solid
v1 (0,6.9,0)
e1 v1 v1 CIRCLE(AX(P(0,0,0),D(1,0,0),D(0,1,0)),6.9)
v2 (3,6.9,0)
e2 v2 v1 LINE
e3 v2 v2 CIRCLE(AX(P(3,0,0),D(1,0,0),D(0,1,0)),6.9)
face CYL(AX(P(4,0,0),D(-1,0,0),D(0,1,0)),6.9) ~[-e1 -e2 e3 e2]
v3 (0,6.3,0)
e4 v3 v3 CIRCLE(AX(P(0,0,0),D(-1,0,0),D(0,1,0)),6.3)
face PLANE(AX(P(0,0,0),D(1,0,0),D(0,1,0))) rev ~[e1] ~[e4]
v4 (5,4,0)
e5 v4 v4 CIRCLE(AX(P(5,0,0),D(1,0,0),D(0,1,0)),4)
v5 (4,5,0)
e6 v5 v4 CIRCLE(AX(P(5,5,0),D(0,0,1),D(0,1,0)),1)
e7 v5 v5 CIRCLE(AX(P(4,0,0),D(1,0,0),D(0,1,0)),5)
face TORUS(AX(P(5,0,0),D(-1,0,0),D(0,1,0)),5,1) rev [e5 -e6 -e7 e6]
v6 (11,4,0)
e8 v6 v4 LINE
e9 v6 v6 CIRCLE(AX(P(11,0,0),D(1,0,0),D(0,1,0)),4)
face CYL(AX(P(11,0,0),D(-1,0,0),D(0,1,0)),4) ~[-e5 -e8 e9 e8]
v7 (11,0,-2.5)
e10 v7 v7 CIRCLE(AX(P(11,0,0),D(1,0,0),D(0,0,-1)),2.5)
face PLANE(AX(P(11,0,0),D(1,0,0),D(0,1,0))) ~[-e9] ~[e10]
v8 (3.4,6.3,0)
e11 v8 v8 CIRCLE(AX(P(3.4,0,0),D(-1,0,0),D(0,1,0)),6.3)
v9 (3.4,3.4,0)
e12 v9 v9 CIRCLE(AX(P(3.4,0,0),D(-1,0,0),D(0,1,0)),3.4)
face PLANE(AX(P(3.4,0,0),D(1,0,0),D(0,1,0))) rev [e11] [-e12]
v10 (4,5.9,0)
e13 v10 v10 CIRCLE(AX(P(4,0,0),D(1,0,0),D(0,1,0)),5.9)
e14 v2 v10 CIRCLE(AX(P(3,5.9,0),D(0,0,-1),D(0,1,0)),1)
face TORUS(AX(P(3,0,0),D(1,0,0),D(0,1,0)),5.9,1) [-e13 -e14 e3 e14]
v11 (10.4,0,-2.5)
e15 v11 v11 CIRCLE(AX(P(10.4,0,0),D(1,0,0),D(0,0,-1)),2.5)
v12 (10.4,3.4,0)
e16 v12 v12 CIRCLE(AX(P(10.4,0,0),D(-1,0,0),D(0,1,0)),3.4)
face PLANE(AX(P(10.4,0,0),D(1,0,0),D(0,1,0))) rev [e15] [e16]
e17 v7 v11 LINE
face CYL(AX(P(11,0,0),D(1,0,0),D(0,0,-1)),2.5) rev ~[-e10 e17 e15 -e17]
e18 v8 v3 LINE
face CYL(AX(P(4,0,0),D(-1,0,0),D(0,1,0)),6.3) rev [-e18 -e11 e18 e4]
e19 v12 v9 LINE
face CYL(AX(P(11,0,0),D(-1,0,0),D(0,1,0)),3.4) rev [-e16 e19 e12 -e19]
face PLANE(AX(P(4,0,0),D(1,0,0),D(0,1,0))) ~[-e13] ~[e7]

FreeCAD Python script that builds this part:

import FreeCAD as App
import Part
import Sketcher


def edges_at(feature, points):
    """Names of the edges that pass closest to the given points."""
    edges = feature.Shape.Edges
    near = lambda p: min(range(len(edges)), key=lambda i: edges[i].distToShape(Part.Vertex(*p))[0])
    return sorted({f"Edge{near(p) + 1}" for p in points})


def faces_at(feature, points):
    """Names of the faces that lie closest to the given points."""
    faces = feature.Shape.Faces
    near = lambda p: min(range(len(faces)), key=lambda i: faces[i].distToShape(Part.Vertex(*p))[0])
    return sorted({f"Face{near(p) + 1}" for p in points})

doc = App.newDocument("Part")
body = doc.addObject("PartDesign::Body", "Body")

sketch1 = body.newObject("Sketcher::SketchObject", "Sketch")
sketch1.AttachmentSupport = (doc.getObject("XY_Plane"), [""])
sketch1.MapMode = "FlatFace"
sketch1.addGeometry([
    Part.LineSegment(App.Vector(0, 6.9, 0), App.Vector(0, 0, 0)),
    Part.LineSegment(App.Vector(0, 0, 0), App.Vector(11, 0, 0)),
    Part.LineSegment(App.Vector(11, 0, 0), App.Vector(11, 4, 0)),
    Part.LineSegment(App.Vector(11, 4, 0), App.Vector(4, 4, 0)),
    Part.LineSegment(App.Vector(4, 4, 0), App.Vector(4, 6.9, 0)),
    Part.LineSegment(App.Vector(4, 6.9, 0), App.Vector(0, 6.9, 0)),
], False)
sketch1.addConstraint([
    Sketcher.Constraint("Coincident", 0, 2, 1, 1),
    Sketcher.Constraint("Coincident", 1, 2, 2, 1),
    Sketcher.Constraint("Coincident", 2, 2, 3, 1),
    Sketcher.Constraint("Coincident", 3, 2, 4, 1),
    Sketcher.Constraint("Coincident", 4, 2, 5, 1),
    Sketcher.Constraint("Coincident", 5, 2, 0, 1),
    Sketcher.Constraint("Vertical", 0),
    Sketcher.Constraint("Horizontal", 1),
    Sketcher.Constraint("Vertical", 2),
    Sketcher.Constraint("Horizontal", 3),
    Sketcher.Constraint("Vertical", 4),
    Sketcher.Constraint("Horizontal", 5),
    Sketcher.Constraint("Coincident", 0, 2, -1, 1),
    Sketcher.Constraint("Equal", 5, 2),
    Sketcher.Constraint("DistanceX", 3, 2, 3, 1, 7.0),
    Sketcher.Constraint("DistanceX", 5, 2, 5, 1, 4.0),
    Sketcher.Constraint("DistanceY", 0, 2, 0, 1, 6.9),
])
revolution = body.newObject("PartDesign::Revolution", "Revolution")
revolution.Profile = sketch1
revolution.ReferenceAxis = (sketch1, ["H_Axis"])
revolution.Angle = 360
doc.recompute()

thickness = body.newObject("PartDesign::Thickness", "Thickness")
thickness.Base = (revolution, faces_at(revolution, [(0, 1.183, -1.658)]))
thickness.Value = 0.6
thickness.Reversed = True
thickness.Join = "Intersection"

sketch2 = body.newObject("Sketcher::SketchObject", "Sketch001")
sketch2.AttachmentSupport = (doc.getObject("YZ_Plane"), [""])
sketch2.MapMode = "FlatFace"
sketch2.AttachmentOffset = App.Placement(App.Vector(0, 0, 11), App.Rotation())
sketch2.addGeometry(Part.Circle(App.Vector(0, 0, 0), App.Vector(0, 0, 1), 2.5), False)
sketch2.addConstraint([
    Sketcher.Constraint("Coincident", 0, 3, -1, 1),
    Sketcher.Constraint("Diameter", 0, 5.0),
])
pocket1 = body.newObject("PartDesign::Pocket", "Pocket")
pocket1.Profile = sketch2
pocket1.Length = 11
doc.recompute()

fillet = body.newObject("PartDesign::Fillet", "Fillet")
fillet.Base = (pocket1, edges_at(pocket1, [(4, -6.9, 0), (4, -4, 0)]))
fillet.Radius = 1

doc.recompute()
